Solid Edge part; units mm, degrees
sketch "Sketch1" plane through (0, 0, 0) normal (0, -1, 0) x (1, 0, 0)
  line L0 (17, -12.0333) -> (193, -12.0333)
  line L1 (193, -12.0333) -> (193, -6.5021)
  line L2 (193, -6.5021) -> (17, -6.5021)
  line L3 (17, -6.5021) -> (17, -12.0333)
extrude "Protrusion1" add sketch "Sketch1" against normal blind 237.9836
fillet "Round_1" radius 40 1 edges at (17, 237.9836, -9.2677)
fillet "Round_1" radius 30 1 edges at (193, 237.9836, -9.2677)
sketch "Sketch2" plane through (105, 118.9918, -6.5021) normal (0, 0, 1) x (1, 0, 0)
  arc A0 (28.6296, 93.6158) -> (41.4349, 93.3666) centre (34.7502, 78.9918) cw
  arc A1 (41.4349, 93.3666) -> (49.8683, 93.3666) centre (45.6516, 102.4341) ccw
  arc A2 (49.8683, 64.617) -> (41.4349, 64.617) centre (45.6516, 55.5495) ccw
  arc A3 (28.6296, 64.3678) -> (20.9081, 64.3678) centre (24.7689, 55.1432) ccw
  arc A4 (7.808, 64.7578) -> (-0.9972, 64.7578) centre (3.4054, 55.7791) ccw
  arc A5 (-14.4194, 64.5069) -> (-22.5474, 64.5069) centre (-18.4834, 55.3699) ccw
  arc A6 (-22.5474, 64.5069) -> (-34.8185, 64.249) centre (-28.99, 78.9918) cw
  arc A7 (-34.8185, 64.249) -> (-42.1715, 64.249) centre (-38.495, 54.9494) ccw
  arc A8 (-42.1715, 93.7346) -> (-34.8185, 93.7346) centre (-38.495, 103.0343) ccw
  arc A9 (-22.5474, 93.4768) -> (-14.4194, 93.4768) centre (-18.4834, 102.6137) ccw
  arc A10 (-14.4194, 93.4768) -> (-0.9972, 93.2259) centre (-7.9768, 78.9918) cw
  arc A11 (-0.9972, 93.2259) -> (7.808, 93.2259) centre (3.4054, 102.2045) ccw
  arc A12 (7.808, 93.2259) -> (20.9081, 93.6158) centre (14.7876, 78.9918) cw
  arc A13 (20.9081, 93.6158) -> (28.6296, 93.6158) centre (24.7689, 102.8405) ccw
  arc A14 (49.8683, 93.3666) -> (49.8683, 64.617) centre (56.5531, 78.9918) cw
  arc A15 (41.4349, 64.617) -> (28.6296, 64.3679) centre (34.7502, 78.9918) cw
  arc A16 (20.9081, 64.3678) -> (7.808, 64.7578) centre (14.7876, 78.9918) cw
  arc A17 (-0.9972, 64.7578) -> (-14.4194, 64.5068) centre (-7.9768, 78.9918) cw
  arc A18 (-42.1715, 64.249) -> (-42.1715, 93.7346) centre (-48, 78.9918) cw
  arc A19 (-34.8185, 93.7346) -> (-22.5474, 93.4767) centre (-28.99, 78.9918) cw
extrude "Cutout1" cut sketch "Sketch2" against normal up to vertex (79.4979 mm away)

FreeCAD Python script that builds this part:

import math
import FreeCAD as App
import Part
import Sketcher
Q = App.Units.Quantity


def edges_at(feature, points):
    """Names of the edges that pass closest to the given points."""
    edges = feature.Shape.Edges
    near = lambda p: min(range(len(edges)), key=lambda i: edges[i].distToShape(Part.Vertex(*p))[0])
    return sorted({f"Edge{near(p) + 1}" for p in points})

doc = App.newDocument("Part")
body = doc.addObject("PartDesign::Body", "Body")

# Sketch on XZ plane
sketch1 = body.newObject("Sketcher::SketchObject", "Sketch")
sketch1.AttachmentSupport = (doc.getObject("XZ_Plane"), [""])
sketch1.MapMode = "FlatFace"
sketch1.addGeometry([
    Part.LineSegment(App.Vector(17, -6.5021, 0), App.Vector(17, -12.0333, 0)),
    Part.LineSegment(App.Vector(17, -12.0333, 0), App.Vector(193, -12.0333, 0)),
    Part.LineSegment(App.Vector(193, -12.0333, 0), App.Vector(193, -6.5021, 0)),
    Part.LineSegment(App.Vector(193, -6.5021, 0), App.Vector(17, -6.5021, 0)),
], False)
sketch1.addConstraint([
    Sketcher.Constraint("Coincident", 0, 2, 1, 1),
    Sketcher.Constraint("Coincident", 1, 2, 2, 1),
    Sketcher.Constraint("Coincident", 2, 2, 3, 1),
    Sketcher.Constraint("Coincident", 3, 2, 0, 1),
    Sketcher.Constraint("Vertical", 0),
    Sketcher.Constraint("Horizontal", 1),
    Sketcher.Constraint("Vertical", 2),
    Sketcher.Constraint("Horizontal", 3),
    Sketcher.Constraint("DistanceX", 1, 1, 1, 2, Q("176 mm")),
    Sketcher.Constraint("DistanceX", -1, 1, 0, 2, Q("17 mm")),
    Sketcher.Constraint("DistanceY", 0, 2, 0, 1, Q("5.5312 mm")),
    Sketcher.Constraint("DistanceY", 2, 2, -1, 1, Q("6.502 mm")),
])
pad1 = body.newObject("PartDesign::Pad", "Pad")
pad1.Profile = sketch1
pad1.Length = 237.9836
pad1.Reversed = True
doc.recompute()

fillet = body.newObject("PartDesign::Fillet", "Fillet")
fillet.Base = (pad1, edges_at(pad1, [(17, 237.984, -9.268)]))
fillet.Radius = 40
doc.recompute()

fillet2 = body.newObject("PartDesign::Fillet", "Fillet001")
fillet2.Base = (fillet, edges_at(fillet, [(193, 237.984, -9.268)]))
fillet2.Radius = 30

# Sketch on XY plane
sketch2 = body.newObject("Sketcher::SketchObject", "Sketch001")
sketch2.AttachmentSupport = (doc.getObject("XY_Plane"), [""])
sketch2.MapMode = "FlatFace"
sketch2.AttachmentOffset = App.Placement(App.Vector(0, 0, -6.5021), App.Rotation())
sketch2.addGeometry([
    Part.ArcOfCircle(Part.Circle(App.Vector(139.7502, 197.9836, 0), App.Vector(0, 0, 1), 15.853078), math.radians(65.060202), math.radians(112.71083)),  # 0
    Part.ArcOfCircle(Part.Circle(App.Vector(129.7689, 221.8323, 0), App.Vector(0, 0, 1), 10.000043), math.radians(-112.7107), math.radians(-67.289828)),  # 1
    Part.ArcOfCircle(Part.Circle(App.Vector(119.7876, 197.9836, 0), App.Vector(0, 0, 1), 15.853135), math.radians(67.289503), math.radians(116.120728)),  # 2
    Part.ArcOfCircle(Part.Circle(App.Vector(108.4054, 221.1963, 0), App.Vector(0, 0, 1), 9.999907), math.radians(-116.120732), math.radians(-63.879268)),  # 3
    Part.ArcOfCircle(Part.Circle(App.Vector(97.0232, 197.9836, 0), App.Vector(0, 0, 1), 15.853149), math.radians(63.879272), math.radians(113.978415)),  # 4
    Part.ArcOfCircle(Part.Circle(App.Vector(86.5166, 221.6055, 0), App.Vector(0, 0, 1), 9.999952), math.radians(-113.979011), math.radians(-66.020989)),  # 5
    Part.ArcOfCircle(Part.Circle(App.Vector(76.01, 197.9836, 0), App.Vector(0, 0, 1), 15.853125), math.radians(66.021585), math.radians(111.571143)),  # 6
    Part.ArcOfCircle(Part.Circle(App.Vector(66.505, 222.0261, 0), App.Vector(0, 0, 1), 10.000054), math.radians(-111.570638), math.radians(-68.429362)),  # 7
    Part.ArcOfCircle(Part.Circle(App.Vector(57, 197.9836, 0), App.Vector(0, 0, 1), 15.853125), math.radians(68.428857), math.radians(291.571143)),  # 8
    Part.ArcOfCircle(Part.Circle(App.Vector(66.505, 173.9412, 0), App.Vector(0, 0, 1), 9.999961), math.radians(68.429151), math.radians(111.570849)),  # 9
    Part.ArcOfCircle(Part.Circle(App.Vector(76.01, 197.9836, 0), App.Vector(0, 0, 1), 15.853125), math.radians(-111.571143), math.radians(-66.021438)),  # 10
    Part.ArcOfCircle(Part.Circle(App.Vector(86.5166, 174.3617, 0), App.Vector(0, 0, 1), 10.000043), math.radians(66.021222), math.radians(113.978778)),  # 11
    Part.ArcOfCircle(Part.Circle(App.Vector(97.0232, 197.9836, 0), App.Vector(0, 0, 1), 15.853125), math.radians(-113.978562), math.radians(-63.879113)),  # 12
    Part.ArcOfCircle(Part.Circle(App.Vector(108.4054, 174.7709, 0), App.Vector(0, 0, 1), 9.999997), math.radians(63.87952), math.radians(116.12048)),  # 13
    Part.ArcOfCircle(Part.Circle(App.Vector(119.7876, 197.9836, 0), App.Vector(0, 0, 1), 15.853135), math.radians(-116.120887), math.radians(-67.289503)),  # 14
    Part.ArcOfCircle(Part.Circle(App.Vector(129.7689, 174.135, 0), App.Vector(0, 0, 1), 9.999912), math.radians(67.289607), math.radians(112.710922)),  # 15
    Part.ArcOfCircle(Part.Circle(App.Vector(139.7502, 197.9836, 0), App.Vector(0, 0, 1), 15.853174), math.radians(-112.71083), math.radians(-65.060202)),  # 16
    Part.ArcOfCircle(Part.Circle(App.Vector(150.6516, 174.5413, 0), App.Vector(0, 0, 1), 10.000006), math.radians(65.059949), math.radians(114.940051)),  # 17
    Part.ArcOfCircle(Part.Circle(App.Vector(161.5531, 197.9836, 0), App.Vector(0, 0, 1), 15.85312), math.radians(-114.940125), math.radians(114.940125)),  # 18
    Part.ArcOfCircle(Part.Circle(App.Vector(150.6516, 221.4259, 0), App.Vector(0, 0, 1), 10.000006), math.radians(-114.940051), math.radians(-65.059949)),  # 19
], False)
sketch2.addConstraint([
    Sketcher.Constraint("Tangent", 0, 2, 1, 2),
    Sketcher.Constraint("Tangent", 1, 1, 2, 1),
    Sketcher.Constraint("Tangent", 2, 2, 3, 2),
    Sketcher.Constraint("Tangent", 3, 1, 4, 1),
    Sketcher.Constraint("Tangent", 4, 2, 5, 2),
    Sketcher.Constraint("Tangent", 5, 1, 6, 1),
    Sketcher.Constraint("Tangent", 6, 2, 7, 2),
    Sketcher.Constraint("Tangent", 7, 1, 8, 1),
    Sketcher.Constraint("Tangent", 8, 2, 9, 2),
    Sketcher.Constraint("Tangent", 9, 1, 10, 1),
    Sketcher.Constraint("Tangent", 10, 2, 11, 2),
    Sketcher.Constraint("Tangent", 11, 1, 12, 1),
    Sketcher.Constraint("Tangent", 12, 2, 13, 2),
    Sketcher.Constraint("Tangent", 13, 1, 14, 1),
    Sketcher.Constraint("Tangent", 14, 2, 15, 2),
    Sketcher.Constraint("Tangent", 15, 1, 16, 1),
    Sketcher.Constraint("Tangent", 16, 2, 17, 2),
    Sketcher.Constraint("Tangent", 17, 1, 18, 1),
    Sketcher.Constraint("Tangent", 18, 2, 19, 2),
    Sketcher.Constraint("Tangent", 19, 1, 0, 1),
    Sketcher.Constraint("Coincident", 10, 3, 6, 3),
    Sketcher.Constraint("Coincident", 12, 3, 4, 3),
    Sketcher.Constraint("Coincident", 14, 3, 2, 3),
    Sketcher.Constraint("Coincident", 16, 3, 0, 3),
    Sketcher.Constraint("Equal", 0, 2),
    Sketcher.Constraint("Equal", 1, 3),
    Sketcher.Constraint("Equal", 2, 4),
    Sketcher.Constraint("Equal", 3, 5),
    Sketcher.Constraint("Equal", 4, 6),
    Sketcher.Constraint("Equal", 5, 7),
    Sketcher.Constraint("Equal", 6, 8),
    Sketcher.Constraint("Equal", 7, 9),
    Sketcher.Constraint("Equal", 8, 10),
    Sketcher.Constraint("Equal", 9, 11),
    Sketcher.Constraint("Equal", 10, 12),
    Sketcher.Constraint("Equal", 11, 13),
    Sketcher.Constraint("Equal", 12, 14),
    Sketcher.Constraint("Equal", 13, 15),
    Sketcher.Constraint("Equal", 14, 16),
    Sketcher.Constraint("Equal", 15, 17),
    Sketcher.Constraint("Equal", 16, 18),
    Sketcher.Constraint("Equal", 17, 19),
    Sketcher.Constraint("Horizontal", 0, 3, 2, 3),
    Sketcher.Constraint("Horizontal", 2, 3, 4, 3),
    Sketcher.Constraint("Horizontal", 4, 3, 6, 3),
    Sketcher.Constraint("Horizontal", 6, 3, 8, 3),
    Sketcher.Constraint("Horizontal", 16, 3, 18, 3),
    Sketcher.Constraint("Radius", 1, Q("10 mm")),
    Sketcher.Constraint("DistanceX", -1, 1, 8, 3, Q("57 mm")),
    Sketcher.Constraint("Radius", 0, Q("15.853 mm")),
    Sketcher.Constraint("DistanceX", 2, 2, 1, 1, Q("13.1 mm")),
    Sketcher.Constraint("DistanceX", -1, 1, 6, 3, Q("76.01 mm")),
    Sketcher.Constraint("DistanceY", 2, 2, 1, 1, Q("0.39 mm")),
    Sketcher.Constraint("DistanceX", -1, 1, 1, 3, Q("129.769 mm")),
    Sketcher.Constraint("DistanceY", -1, 1, 7, 3, Q("222.026 mm")),
    Sketcher.Constraint("DistanceX", -1, 1, 18, 3, Q("161.553 mm")),
])
pocket1 = body.newObject("PartDesign::Pocket", "Pocket")
pocket1.Profile = sketch2
pocket1.Length = 79.4979

doc.recompute()
